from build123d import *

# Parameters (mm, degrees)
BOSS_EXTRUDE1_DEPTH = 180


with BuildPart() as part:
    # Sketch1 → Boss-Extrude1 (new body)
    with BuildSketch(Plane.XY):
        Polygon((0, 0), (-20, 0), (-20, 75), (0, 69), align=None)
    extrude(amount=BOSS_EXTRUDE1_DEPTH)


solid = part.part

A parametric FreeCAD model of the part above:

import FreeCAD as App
import Part
import Sketcher
Q = App.Units.Quantity


def add_polygon(sketch, points):
    """Adds a closed chain of lines whose ends are joined by coincident constraints."""
    first, n = sketch.GeometryCount, len(points)
    for a, b in zip(points, points[1:] + points[:1]):
        sketch.addGeometry(Part.LineSegment(App.Vector(*a, 0), App.Vector(*b, 0)), False)
    for i in range(n):
        sketch.addConstraint(Sketcher.Constraint("Coincident", first + i, 2, first + (i + 1) % n, 1))

doc = App.newDocument("Part")
body = doc.addObject("PartDesign::Body", "Body")

# Sketch on XY plane
sketch1 = body.newObject("Sketcher::SketchObject", "Sketch")
sketch1.AttachmentSupport = (doc.getObject("XY_Plane"), [""])
sketch1.MapMode = "FlatFace"
add_polygon(sketch1, [(-20, 0), (0, 0), (0, 69), (-20, 75)])  # lines 0-3
sketch1.addConstraint([
    Sketcher.Constraint("Horizontal", 0),
    Sketcher.Constraint("Vertical", 1),
    Sketcher.Constraint("Vertical", 3),
    Sketcher.Constraint("Coincident", 0, 2, -1, 1),
    Sketcher.Constraint("DistanceX", 0, 1, 0, 2, Q("20 mm")),
    Sketcher.Constraint("DistanceY", 1, 1, 1, 2, Q("69 mm")),
    Sketcher.Constraint("DistanceY", 3, 2, 3, 1, Q("75 mm")),
])
pad1 = body.newObject("PartDesign::Pad", "Pad")
pad1.Profile = sketch1
pad1.Length = 180

doc.recompute()
